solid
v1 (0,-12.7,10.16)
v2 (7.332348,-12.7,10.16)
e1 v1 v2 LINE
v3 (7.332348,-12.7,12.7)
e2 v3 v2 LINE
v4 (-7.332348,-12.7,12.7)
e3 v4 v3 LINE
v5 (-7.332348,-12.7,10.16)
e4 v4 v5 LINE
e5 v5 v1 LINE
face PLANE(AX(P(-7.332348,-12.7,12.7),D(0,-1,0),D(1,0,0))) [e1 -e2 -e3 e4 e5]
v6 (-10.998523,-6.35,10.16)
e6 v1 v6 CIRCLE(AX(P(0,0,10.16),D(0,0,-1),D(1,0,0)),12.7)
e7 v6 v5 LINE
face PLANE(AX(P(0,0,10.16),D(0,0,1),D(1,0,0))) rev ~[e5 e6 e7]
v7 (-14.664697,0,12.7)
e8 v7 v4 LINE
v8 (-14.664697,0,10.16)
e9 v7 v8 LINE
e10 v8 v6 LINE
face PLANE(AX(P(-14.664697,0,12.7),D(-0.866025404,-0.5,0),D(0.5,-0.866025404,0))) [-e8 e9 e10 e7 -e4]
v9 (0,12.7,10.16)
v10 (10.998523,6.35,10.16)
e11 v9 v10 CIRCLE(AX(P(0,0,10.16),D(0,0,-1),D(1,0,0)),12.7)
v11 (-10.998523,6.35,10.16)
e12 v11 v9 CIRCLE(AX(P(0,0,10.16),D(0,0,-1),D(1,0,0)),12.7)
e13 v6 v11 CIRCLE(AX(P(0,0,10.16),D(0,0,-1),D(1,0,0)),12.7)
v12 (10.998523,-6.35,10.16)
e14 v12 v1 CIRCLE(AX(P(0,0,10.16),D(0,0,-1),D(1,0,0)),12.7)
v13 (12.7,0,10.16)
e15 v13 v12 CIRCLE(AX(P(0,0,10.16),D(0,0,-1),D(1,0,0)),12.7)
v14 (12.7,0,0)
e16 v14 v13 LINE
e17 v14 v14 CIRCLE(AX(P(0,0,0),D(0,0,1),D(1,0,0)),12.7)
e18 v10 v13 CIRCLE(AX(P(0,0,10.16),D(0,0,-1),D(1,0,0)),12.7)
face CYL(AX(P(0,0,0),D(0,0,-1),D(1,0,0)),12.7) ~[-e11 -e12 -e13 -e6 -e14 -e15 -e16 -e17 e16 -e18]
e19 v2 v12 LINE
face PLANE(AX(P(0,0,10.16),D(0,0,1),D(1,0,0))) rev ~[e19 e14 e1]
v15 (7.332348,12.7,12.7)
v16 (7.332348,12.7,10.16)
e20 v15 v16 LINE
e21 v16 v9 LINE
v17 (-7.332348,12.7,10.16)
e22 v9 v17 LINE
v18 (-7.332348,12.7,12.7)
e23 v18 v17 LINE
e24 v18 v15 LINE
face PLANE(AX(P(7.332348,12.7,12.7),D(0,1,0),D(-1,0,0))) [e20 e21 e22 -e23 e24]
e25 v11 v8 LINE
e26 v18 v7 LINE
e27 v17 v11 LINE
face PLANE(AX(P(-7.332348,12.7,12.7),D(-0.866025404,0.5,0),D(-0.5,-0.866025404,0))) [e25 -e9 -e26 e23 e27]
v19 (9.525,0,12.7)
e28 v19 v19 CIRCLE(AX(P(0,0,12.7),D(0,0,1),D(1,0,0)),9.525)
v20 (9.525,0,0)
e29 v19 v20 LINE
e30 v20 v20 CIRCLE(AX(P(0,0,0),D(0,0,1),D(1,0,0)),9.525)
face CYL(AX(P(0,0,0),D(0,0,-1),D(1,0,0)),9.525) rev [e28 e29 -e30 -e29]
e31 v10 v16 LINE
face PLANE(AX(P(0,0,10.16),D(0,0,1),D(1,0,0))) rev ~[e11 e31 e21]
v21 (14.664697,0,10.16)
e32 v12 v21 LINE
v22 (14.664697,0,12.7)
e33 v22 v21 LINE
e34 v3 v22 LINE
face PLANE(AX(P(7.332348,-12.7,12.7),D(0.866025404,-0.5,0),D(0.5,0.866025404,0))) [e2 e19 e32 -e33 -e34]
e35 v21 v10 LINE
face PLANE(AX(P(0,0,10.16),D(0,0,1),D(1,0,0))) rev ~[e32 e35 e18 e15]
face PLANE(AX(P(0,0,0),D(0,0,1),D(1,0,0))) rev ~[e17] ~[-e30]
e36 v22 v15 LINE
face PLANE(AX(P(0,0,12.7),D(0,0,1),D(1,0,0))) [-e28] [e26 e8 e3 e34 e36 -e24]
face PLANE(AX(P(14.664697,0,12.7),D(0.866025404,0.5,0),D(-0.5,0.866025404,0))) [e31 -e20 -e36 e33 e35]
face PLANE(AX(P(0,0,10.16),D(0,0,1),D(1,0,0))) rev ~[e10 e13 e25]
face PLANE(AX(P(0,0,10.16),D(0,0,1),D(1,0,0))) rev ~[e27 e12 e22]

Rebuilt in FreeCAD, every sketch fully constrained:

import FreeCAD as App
import Part
import Sketcher
Q = App.Units.Quantity


def add_polygon(sketch, points):
    """Adds a closed chain of lines whose ends are joined by coincident constraints."""
    first, n = sketch.GeometryCount, len(points)
    for a, b in zip(points, points[1:] + points[:1]):
        sketch.addGeometry(Part.LineSegment(App.Vector(*a, 0), App.Vector(*b, 0)), False)
    for i in range(n):
        sketch.addConstraint(Sketcher.Constraint("Coincident", first + i, 2, first + (i + 1) % n, 1))

doc = App.newDocument("Part")
body = doc.addObject("PartDesign::Body", "Body")

# Sketch on XY plane
sketch1 = body.newObject("Sketcher::SketchObject", "Sketch")
sketch1.AttachmentSupport = (doc.getObject("XY_Plane"), [""])
sketch1.MapMode = "FlatFace"
sketch1.addGeometry([
    Part.Circle(App.Vector(0, 0, 0), App.Vector(0, 0, 1), 13),
    Part.Circle(App.Vector(0, 0, 0), App.Vector(0, 0, 1), 10),
], False)
sketch1.addConstraint([
    Sketcher.Constraint("Coincident", 0, 3, -1, 1),
    Sketcher.Constraint("Coincident", 1, 3, -1, 1),
    Sketcher.Constraint("Diameter", 0, Q("1 in")),
    Sketcher.Constraint("Diameter", 1, Q("0.75 in")),
])
pad1 = body.newObject("PartDesign::Pad", "Pad")
pad1.Profile = sketch1
pad1.Length = Q("0.5 in")

# Sketch on XY plane
sketch2 = body.newObject("Sketcher::SketchObject", "Sketch001")
sketch2.AttachmentSupport = (doc.getObject("XY_Plane"), [""])
sketch2.MapMode = "FlatFace"
sketch2.AttachmentOffset = App.Placement(App.Vector(0, 0, 0.5 * 25.4), App.Rotation())
add_polygon(sketch2, [(7, 13), (-7, 13), (-15, 0), (-7, -13), (7, -13), (15, 0)])  # lines 0-5
sketch2.addGeometry(Part.Circle(App.Vector(0, 0, 0), App.Vector(0, 0, 1), 10), False)  # 6
sketch2.addConstraint([
    Sketcher.Constraint("Horizontal", 0),
    Sketcher.Constraint("Horizontal", 3),
    Sketcher.Constraint("Coincident", 6, 3, -1, 1),
    Sketcher.Constraint("Symmetric", 0, 2, 3, 2, -1, 1),
    Sketcher.Constraint("Symmetric", 1, 2, 4, 2, -1, 1),
    Sketcher.Constraint("PointOnObject", 1, 2, -1),
    Sketcher.Constraint("Parallel", 2, 5),
    Sketcher.Constraint("Vertical", 0, 2, 2, 2),
    Sketcher.Constraint("Diameter", 6, Q("0.75 in")),
    Sketcher.Constraint("Angle", 1, Q("-120 deg")),
    Sketcher.Constraint("DistanceY", 2, 2, 0, 2, Q("1 in")),
    Sketcher.Constraint("DistanceX", 0, 2, 0, 1, 14.664697),
])
pad2 = body.newObject("PartDesign::Pad", "Pad001")
pad2.Profile = sketch2
pad2.Length = Q("0.1 in")
pad2.Reversed = True

doc.recompute()
